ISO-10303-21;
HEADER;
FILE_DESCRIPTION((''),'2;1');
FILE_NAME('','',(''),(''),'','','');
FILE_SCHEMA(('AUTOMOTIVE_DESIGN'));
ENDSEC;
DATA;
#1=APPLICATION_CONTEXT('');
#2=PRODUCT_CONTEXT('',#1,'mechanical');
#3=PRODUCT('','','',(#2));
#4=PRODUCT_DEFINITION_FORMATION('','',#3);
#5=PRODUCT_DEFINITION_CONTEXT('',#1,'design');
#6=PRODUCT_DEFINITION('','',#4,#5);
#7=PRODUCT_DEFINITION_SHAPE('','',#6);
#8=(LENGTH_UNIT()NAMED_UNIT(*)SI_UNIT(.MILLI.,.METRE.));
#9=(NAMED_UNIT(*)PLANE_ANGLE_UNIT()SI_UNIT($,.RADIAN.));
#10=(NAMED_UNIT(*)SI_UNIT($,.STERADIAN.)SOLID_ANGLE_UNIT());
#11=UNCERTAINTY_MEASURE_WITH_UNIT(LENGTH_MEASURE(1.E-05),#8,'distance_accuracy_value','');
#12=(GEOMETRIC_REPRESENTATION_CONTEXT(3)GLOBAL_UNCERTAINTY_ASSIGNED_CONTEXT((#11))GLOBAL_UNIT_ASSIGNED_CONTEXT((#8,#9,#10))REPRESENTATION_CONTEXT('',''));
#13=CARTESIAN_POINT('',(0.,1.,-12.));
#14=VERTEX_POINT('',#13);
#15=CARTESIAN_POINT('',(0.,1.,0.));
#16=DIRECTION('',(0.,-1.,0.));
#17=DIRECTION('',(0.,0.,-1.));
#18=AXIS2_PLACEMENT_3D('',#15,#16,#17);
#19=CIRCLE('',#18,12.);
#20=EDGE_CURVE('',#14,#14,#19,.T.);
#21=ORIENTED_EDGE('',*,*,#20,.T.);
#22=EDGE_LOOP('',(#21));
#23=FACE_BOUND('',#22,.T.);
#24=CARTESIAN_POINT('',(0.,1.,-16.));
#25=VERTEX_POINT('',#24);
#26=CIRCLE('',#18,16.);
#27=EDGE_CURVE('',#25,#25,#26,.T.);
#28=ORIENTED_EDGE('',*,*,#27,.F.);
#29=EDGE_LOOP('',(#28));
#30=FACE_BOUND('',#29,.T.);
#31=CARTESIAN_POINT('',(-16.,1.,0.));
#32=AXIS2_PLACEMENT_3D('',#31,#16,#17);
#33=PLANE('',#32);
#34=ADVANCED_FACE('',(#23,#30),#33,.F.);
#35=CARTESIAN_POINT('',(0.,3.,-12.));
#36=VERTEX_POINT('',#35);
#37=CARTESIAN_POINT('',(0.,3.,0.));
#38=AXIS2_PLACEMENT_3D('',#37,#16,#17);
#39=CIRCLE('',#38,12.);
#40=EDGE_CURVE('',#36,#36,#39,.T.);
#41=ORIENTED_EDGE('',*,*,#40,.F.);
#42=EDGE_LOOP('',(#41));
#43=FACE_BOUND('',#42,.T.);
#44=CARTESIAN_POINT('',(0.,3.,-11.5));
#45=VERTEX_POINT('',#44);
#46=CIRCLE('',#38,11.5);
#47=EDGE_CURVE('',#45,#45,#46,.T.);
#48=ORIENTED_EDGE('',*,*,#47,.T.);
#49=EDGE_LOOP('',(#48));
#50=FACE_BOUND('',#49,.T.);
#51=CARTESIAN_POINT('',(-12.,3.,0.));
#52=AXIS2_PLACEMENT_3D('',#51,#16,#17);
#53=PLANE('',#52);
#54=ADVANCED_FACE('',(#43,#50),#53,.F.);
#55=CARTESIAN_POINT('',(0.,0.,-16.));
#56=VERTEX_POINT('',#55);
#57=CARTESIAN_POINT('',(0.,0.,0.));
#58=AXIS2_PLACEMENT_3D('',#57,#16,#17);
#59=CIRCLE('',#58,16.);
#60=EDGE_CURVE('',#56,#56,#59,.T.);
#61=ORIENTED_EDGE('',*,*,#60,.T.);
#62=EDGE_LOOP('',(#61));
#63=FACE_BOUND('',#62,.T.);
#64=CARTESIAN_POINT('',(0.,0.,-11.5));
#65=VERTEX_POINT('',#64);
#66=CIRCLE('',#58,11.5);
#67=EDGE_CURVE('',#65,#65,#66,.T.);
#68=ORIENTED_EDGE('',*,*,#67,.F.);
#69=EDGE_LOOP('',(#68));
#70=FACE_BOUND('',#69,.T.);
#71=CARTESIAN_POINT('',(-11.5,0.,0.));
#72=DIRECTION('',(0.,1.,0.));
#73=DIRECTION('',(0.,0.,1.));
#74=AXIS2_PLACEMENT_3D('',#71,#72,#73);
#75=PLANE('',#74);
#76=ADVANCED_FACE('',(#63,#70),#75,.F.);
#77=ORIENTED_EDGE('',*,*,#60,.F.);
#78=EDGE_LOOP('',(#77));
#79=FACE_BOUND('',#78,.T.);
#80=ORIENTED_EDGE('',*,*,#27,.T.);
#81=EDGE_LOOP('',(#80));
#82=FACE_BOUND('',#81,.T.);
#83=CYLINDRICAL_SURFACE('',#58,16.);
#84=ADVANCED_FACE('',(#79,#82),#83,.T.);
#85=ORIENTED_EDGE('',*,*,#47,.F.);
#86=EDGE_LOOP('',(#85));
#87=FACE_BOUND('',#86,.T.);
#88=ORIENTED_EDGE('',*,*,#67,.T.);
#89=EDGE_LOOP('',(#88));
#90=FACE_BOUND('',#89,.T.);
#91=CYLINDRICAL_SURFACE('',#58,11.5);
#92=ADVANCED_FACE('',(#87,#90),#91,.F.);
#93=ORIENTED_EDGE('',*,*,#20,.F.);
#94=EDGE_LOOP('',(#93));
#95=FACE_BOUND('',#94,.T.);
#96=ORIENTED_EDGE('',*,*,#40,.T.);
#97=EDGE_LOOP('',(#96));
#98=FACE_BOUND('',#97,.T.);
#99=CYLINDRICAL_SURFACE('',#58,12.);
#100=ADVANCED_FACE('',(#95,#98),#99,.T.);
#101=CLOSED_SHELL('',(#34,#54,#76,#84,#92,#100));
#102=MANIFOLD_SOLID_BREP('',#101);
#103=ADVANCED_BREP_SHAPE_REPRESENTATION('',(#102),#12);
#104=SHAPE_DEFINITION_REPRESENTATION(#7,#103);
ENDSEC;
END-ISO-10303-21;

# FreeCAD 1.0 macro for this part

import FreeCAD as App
import Part
import Sketcher

V = App.Vector
Q = App.Units.Quantity

doc = App.newDocument("Part")
body = doc.addObject("PartDesign::Body", "Body")

# Sketch on XY plane
sketch1 = body.newObject("Sketcher::SketchObject", "Sketch")
sketch1.AttachmentSupport = (doc.getObject("XY_Plane"), [""])
sketch1.MapMode = "FlatFace"
sketch1.addGeometry(Part.LineSegment(V(-16, 0, 0), V(-11.5, 0, 0)), False)
sketch1.addGeometry(Part.LineSegment(V(-11.5, 0, 0), V(-11.5, 3, 0)), False)
sketch1.addGeometry(Part.LineSegment(V(-11.5, 3, 0), V(-12, 3, 0)), False)
sketch1.addGeometry(Part.LineSegment(V(-12, 3, 0), V(-12, 1, 0)), False)
sketch1.addGeometry(Part.LineSegment(V(-12, 1, 0), V(-16, 1, 0)), False)
sketch1.addGeometry(Part.LineSegment(V(-16, 1, 0), V(-16, 0, 0)), False)
sketch1.addConstraint(Sketcher.Constraint("Coincident", 0, 2, 1, 1))
sketch1.addConstraint(Sketcher.Constraint("Coincident", 1, 2, 2, 1))
sketch1.addConstraint(Sketcher.Constraint("Coincident", 2, 2, 3, 1))
sketch1.addConstraint(Sketcher.Constraint("Coincident", 3, 2, 4, 1))
sketch1.addConstraint(Sketcher.Constraint("Coincident", 4, 2, 5, 1))
sketch1.addConstraint(Sketcher.Constraint("Coincident", 5, 2, 0, 1))
sketch1.addConstraint(Sketcher.Constraint("Horizontal", 0))
sketch1.addConstraint(Sketcher.Constraint("Vertical", 1))
sketch1.addConstraint(Sketcher.Constraint("Horizontal", 2))
sketch1.addConstraint(Sketcher.Constraint("Vertical", 3))
sketch1.addConstraint(Sketcher.Constraint("Horizontal", 4))
sketch1.addConstraint(Sketcher.Constraint("Vertical", 5))
sketch1.addConstraint(Sketcher.Constraint("PointOnObject", 0, 2, -1))
sketch1.addConstraint(Sketcher.Constraint("DistanceX", 4, 2, 4, 1, Q("4 mm")))
sketch1.addConstraint(Sketcher.Constraint("DistanceY", 1, 1, 1, 2, Q("3 mm")))
sketch1.addConstraint(Sketcher.Constraint("DistanceY", 3, 2, 3, 1, Q("2 mm")))
sketch1.addConstraint(Sketcher.Constraint("DistanceX", 0, 1, 0, 2, Q("4.5 mm")))
sketch1.addConstraint(Sketcher.Constraint("DistanceX", 2, 2, -1, 1, Q("12 mm")))
revolution = body.newObject("PartDesign::Revolution", "Revolution")
revolution.Profile = sketch1
revolution.ReferenceAxis = (sketch1, ["V_Axis"])
revolution.Angle = 360

doc.recompute()
